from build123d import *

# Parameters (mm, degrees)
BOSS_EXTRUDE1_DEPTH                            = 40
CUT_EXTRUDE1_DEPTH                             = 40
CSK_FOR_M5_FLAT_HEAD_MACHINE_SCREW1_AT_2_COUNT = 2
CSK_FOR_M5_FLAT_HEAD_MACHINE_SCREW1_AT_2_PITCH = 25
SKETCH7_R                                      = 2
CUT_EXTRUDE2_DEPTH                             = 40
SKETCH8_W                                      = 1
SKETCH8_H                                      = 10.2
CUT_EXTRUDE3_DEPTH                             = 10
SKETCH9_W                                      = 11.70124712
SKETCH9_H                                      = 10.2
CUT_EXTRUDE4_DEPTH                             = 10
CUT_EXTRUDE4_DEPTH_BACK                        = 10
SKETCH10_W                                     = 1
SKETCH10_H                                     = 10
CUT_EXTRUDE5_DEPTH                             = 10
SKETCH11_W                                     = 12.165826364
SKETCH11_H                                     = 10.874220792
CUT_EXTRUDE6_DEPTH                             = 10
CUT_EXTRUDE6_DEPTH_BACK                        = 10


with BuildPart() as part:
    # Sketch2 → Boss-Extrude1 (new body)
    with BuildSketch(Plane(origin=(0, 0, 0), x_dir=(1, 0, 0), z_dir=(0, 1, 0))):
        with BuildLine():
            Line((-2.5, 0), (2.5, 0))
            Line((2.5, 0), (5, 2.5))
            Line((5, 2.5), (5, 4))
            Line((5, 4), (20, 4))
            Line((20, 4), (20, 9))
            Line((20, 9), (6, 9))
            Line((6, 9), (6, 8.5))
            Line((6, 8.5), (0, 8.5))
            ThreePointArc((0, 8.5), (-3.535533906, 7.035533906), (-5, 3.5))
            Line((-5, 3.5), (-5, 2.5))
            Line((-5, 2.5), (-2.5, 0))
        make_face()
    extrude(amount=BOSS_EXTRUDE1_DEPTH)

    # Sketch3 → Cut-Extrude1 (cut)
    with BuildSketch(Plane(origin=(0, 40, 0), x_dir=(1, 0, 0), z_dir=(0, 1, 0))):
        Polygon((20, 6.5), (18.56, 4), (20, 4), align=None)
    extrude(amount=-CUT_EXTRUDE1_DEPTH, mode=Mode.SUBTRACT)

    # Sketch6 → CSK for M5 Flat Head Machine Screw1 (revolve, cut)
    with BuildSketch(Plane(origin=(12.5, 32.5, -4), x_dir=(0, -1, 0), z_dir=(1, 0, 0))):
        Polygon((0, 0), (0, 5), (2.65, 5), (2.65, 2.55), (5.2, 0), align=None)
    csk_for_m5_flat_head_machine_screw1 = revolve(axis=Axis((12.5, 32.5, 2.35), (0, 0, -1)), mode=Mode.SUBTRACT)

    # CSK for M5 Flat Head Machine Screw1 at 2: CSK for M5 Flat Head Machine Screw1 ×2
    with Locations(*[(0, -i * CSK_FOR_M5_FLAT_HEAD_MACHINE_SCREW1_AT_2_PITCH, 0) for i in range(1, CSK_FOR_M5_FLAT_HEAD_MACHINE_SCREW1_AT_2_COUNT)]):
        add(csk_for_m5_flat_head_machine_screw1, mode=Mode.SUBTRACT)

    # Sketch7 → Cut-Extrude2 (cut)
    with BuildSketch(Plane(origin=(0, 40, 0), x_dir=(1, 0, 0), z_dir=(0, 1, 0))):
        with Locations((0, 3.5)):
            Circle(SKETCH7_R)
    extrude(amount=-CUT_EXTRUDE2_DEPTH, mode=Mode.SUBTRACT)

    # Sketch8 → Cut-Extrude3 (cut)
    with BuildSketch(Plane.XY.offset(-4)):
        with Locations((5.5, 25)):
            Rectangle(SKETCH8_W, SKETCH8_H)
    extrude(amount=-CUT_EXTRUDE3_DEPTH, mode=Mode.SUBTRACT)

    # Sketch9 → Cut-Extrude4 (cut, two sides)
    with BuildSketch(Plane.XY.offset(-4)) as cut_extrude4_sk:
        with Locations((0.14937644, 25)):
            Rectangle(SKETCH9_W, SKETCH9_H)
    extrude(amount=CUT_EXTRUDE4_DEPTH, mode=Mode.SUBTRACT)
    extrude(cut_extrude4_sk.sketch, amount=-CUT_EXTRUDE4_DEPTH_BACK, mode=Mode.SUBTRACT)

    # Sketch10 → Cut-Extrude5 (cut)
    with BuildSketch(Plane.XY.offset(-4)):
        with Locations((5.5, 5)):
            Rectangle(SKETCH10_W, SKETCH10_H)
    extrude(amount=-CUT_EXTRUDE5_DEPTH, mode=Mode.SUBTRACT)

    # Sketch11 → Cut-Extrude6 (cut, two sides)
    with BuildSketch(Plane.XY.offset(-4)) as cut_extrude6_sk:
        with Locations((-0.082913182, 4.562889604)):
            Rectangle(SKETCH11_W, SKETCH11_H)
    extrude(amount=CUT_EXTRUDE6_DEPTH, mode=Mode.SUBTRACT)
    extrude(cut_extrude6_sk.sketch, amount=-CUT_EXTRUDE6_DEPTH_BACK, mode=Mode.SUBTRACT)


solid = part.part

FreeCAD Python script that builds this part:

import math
import FreeCAD as App
import Part
import Sketcher
Q = App.Units.Quantity


def add_polygon(sketch, points):
    """Adds a closed chain of lines whose ends are joined by coincident constraints."""
    first, n = sketch.GeometryCount, len(points)
    for a, b in zip(points, points[1:] + points[:1]):
        sketch.addGeometry(Part.LineSegment(App.Vector(*a, 0), App.Vector(*b, 0)), False)
    for i in range(n):
        sketch.addConstraint(Sketcher.Constraint("Coincident", first + i, 2, first + (i + 1) % n, 1))

doc = App.newDocument("Part")
body = doc.addObject("PartDesign::Body", "Body")

sketch1 = body.newObject("Sketcher::SketchObject", "Sketch")
sketch1.AttachmentSupport = (doc.getObject("XZ_Plane"), [""])
sketch1.MapMode = "FlatFace"
sketch1.addGeometry([
    Part.LineSegment(App.Vector(-2.5, 0, 0), App.Vector(2.5, 0, 0)),
    Part.LineSegment(App.Vector(2.5, 0, 0), App.Vector(5, -2.5, 0)),
    Part.LineSegment(App.Vector(5, -2.5, 0), App.Vector(5, -4, 0)),
    Part.LineSegment(App.Vector(5, -4, 0), App.Vector(20, -4, 0)),
    Part.LineSegment(App.Vector(20, -4, 0), App.Vector(20, -9, 0)),
    Part.LineSegment(App.Vector(20, -9, 0), App.Vector(6, -9, 0)),
    Part.LineSegment(App.Vector(6, -9, 0), App.Vector(6, -8.5, 0)),
    Part.LineSegment(App.Vector(6, -8.5, 0), App.Vector(0, -8.5, 0)),
    Part.ArcOfCircle(Part.Circle(App.Vector(0, -3.5, 0), App.Vector(0, 0, 1), 5), math.radians(180), math.radians(270)),
    Part.LineSegment(App.Vector(-5, -3.5, 0), App.Vector(-5, -2.5, 0)),
    Part.LineSegment(App.Vector(-5, -2.5, 0), App.Vector(-2.5, 0, 0)),
], False)
sketch1.addConstraint([
    Sketcher.Constraint("Coincident", 0, 2, 1, 1),
    Sketcher.Constraint("Coincident", 1, 2, 2, 1),
    Sketcher.Constraint("Coincident", 2, 2, 3, 1),
    Sketcher.Constraint("Coincident", 3, 2, 4, 1),
    Sketcher.Constraint("Coincident", 4, 2, 5, 1),
    Sketcher.Constraint("Coincident", 5, 2, 6, 1),
    Sketcher.Constraint("Coincident", 6, 2, 7, 1),
    Sketcher.Constraint("Tangent", 7, 2, 8, 2),
    Sketcher.Constraint("Tangent", 8, 1, 9, 1),
    Sketcher.Constraint("Coincident", 9, 2, 10, 1),
    Sketcher.Constraint("Coincident", 10, 2, 0, 1),
    Sketcher.Constraint("Horizontal", 0),
    Sketcher.Constraint("Vertical", 2),
    Sketcher.Constraint("Horizontal", 3),
    Sketcher.Constraint("Vertical", 4),
    Sketcher.Constraint("Horizontal", 5),
    Sketcher.Constraint("Vertical", 6),
    Sketcher.Constraint("Horizontal", 7),
    Sketcher.Constraint("Vertical", 9),
    Sketcher.Constraint("Symmetric", 0, 2, 10, 2, -1, 1),
    Sketcher.Constraint("Symmetric", 1, 2, 9, 2, -2),
    Sketcher.Constraint("PointOnObject", 8, 3, -2),
    Sketcher.Constraint("Perpendicular", 1, 10),
    Sketcher.Constraint("Equal", 0, 4),
    Sketcher.Constraint("Radius", 8, Q("5 mm")),
    Sketcher.Constraint("DistanceX", 0, 1, 0, 2, Q("5 mm")),
    Sketcher.Constraint("DistanceX", 3, 1, 3, 2, Q("15 mm")),
    Sketcher.Constraint("DistanceX", 5, 2, 5, 1, Q("14 mm")),
    Sketcher.Constraint("DistanceY", 9, 1, 9, 2, Q("1 mm")),
    Sketcher.Constraint("DistanceY", 2, 2, 2, 1, Q("1.5 mm")),
])
pad1 = body.newObject("PartDesign::Pad", "Pad")
pad1.Profile = sketch1
pad1.Length = 40
pad1.Reversed = True

sketch2 = body.newObject("Sketcher::SketchObject", "Sketch001")
sketch2.AttachmentSupport = (doc.getObject("XZ_Plane"), [""])
sketch2.MapMode = "FlatFace"
sketch2.AttachmentOffset = App.Placement(App.Vector(0, 0, -40), App.Rotation())
add_polygon(sketch2, [(20, -6.5), (18.56, -4), (20, -4)])
sketch2.addConstraint([
    Sketcher.Constraint("Horizontal", 1),
    Sketcher.Constraint("Vertical", 2),
    Sketcher.Constraint("DistanceY", 2, 2, 2, 1, Q("2.5 mm")),
    Sketcher.Constraint("DistanceY", 0, 2, -1, 1, Q("4 mm")),
    Sketcher.Constraint("DistanceX", -1, 1, 1, 2, Q("20 mm")),
    Sketcher.Constraint("DistanceX", 1, 1, 1, 2, Q("1.44 mm")),
])
pocket1 = body.newObject("PartDesign::Pocket", "Pocket")
pocket1.Profile = sketch2
pocket1.Length = 40
pocket1.Reversed = True

sketch3 = body.newObject("Sketcher::SketchObject", "Sketch002")
sketch3.AttachmentSupport = (doc.getObject("YZ_Plane"), [""])
sketch3.MapMode = "FlatFace"
sketch3.AttachmentOffset = App.Placement(App.Vector(0, 0, 12.5), App.Rotation())
add_polygon(sketch3, [(32.5, -9), (32.5, -4), (27.3, -4), (29.85, -6.55), (29.85, -9)])
sketch3.addGeometry(Part.LineSegment(App.Vector(32.5, -4, 0), App.Vector(32.5, -9, 0)), True)
sketch3.addConstraint([
    Sketcher.Constraint("Vertical", 0),
    Sketcher.Constraint("Horizontal", 1),
    Sketcher.Constraint("Vertical", 3),
    Sketcher.Constraint("Horizontal", 4),
    Sketcher.Constraint("Vertical", 5),
    Sketcher.Constraint("Coincident", 5, 1, 0, 2),
    Sketcher.Constraint("Horizontal", 3, 2, 5, 2),
    Sketcher.Constraint("DistanceY", 0, 1, 0, 2, Q("5 mm")),
    Sketcher.Constraint("Angle", 2, Q("-45 deg")),
    Sketcher.Constraint("DistanceX", 1, 2, 1, 1, Q("5.2 mm")),
    Sketcher.Constraint("DistanceY", 0, 2, -1, 1, Q("4 mm")),
    Sketcher.Constraint("DistanceX", 4, 1, 4, 2, Q("2.65 mm")),
    Sketcher.Constraint("DistanceX", -1, 1, 0, 2, Q("32.5 mm")),
])
groove = body.newObject("PartDesign::Groove", "Groove")
groove.Profile = sketch3
groove.ReferenceAxis = (sketch3, ["Axis0"])
groove.Angle = 360
doc.recompute()

linearpattern = body.newObject("PartDesign::LinearPattern", "LinearPattern")
linearpattern.Originals = [groove]
linearpattern.Direction = (doc.getObject("Y_Axis"), [""])
linearpattern.Mode = "offset"
linearpattern.Offset = 25
linearpattern.Occurrences = 2
linearpattern.Reversed = True
body.Tip = linearpattern

sketch4 = body.newObject("Sketcher::SketchObject", "Sketch003")
sketch4.AttachmentSupport = (doc.getObject("XZ_Plane"), [""])
sketch4.MapMode = "FlatFace"
sketch4.AttachmentOffset = App.Placement(App.Vector(0, 0, -40), App.Rotation())
sketch4.addGeometry(Part.Circle(App.Vector(0, -3.5, 0), App.Vector(0, 0, 1), 2), False)
sketch4.addConstraint([
    Sketcher.Constraint("PointOnObject", 0, 3, -2),
    Sketcher.Constraint("Diameter", 0, Q("4 mm")),
    Sketcher.Constraint("DistanceY", 0, 3, -1, 1, Q("3.5 mm")),
])
pocket2 = body.newObject("PartDesign::Pocket", "Pocket001")
pocket2.Profile = sketch4
pocket2.Length = 40
pocket2.Reversed = True

sketch5 = body.newObject("Sketcher::SketchObject", "Sketch004")
sketch5.AttachmentSupport = (doc.getObject("XY_Plane"), [""])
sketch5.MapMode = "FlatFace"
sketch5.AttachmentOffset = App.Placement(App.Vector(0, 0, -4), App.Rotation())
add_polygon(sketch5, [(5, 30.1), (5, 19.9), (6, 19.9), (6, 30.1)])
sketch5.addConstraint([
    Sketcher.Constraint("Vertical", 0),
    Sketcher.Constraint("Horizontal", 1),
    Sketcher.Constraint("Vertical", 2),
    Sketcher.Constraint("Horizontal", 3),
    Sketcher.Constraint("DistanceX", 1, 1, 1, 2, Q("1 mm")),
    Sketcher.Constraint("DistanceY", 0, 2, 0, 1, Q("10.2 mm")),
    Sketcher.Constraint("DistanceX", -1, 1, 0, 2, Q("5 mm")),
    Sketcher.Constraint("DistanceY", -1, 1, 0, 2, Q("19.9 mm")),
])
pocket3 = body.newObject("PartDesign::Pocket", "Pocket002")
pocket3.Profile = sketch5
pocket3.Length = 10

sketch6 = body.newObject("Sketcher::SketchObject", "Sketch005")
sketch6.AttachmentSupport = (doc.getObject("XY_Plane"), [""])
sketch6.MapMode = "FlatFace"
sketch6.AttachmentOffset = App.Placement(App.Vector(0, 0, -4), App.Rotation())
add_polygon(sketch6, [(-5.701247, 30.1), (-5.701247, 19.9), (6, 19.9), (6, 30.1)])
sketch6.addConstraint([
    Sketcher.Constraint("Vertical", 0),
    Sketcher.Constraint("Horizontal", 1),
    Sketcher.Constraint("Vertical", 2),
    Sketcher.Constraint("Horizontal", 3),
    Sketcher.Constraint("DistanceY", 0, 2, 0, 1, Q("10.2 mm")),
    Sketcher.Constraint("DistanceX", -1, 1, 1, 2, Q("6 mm")),
    Sketcher.Constraint("DistanceY", -1, 1, 0, 2, Q("19.9 mm")),
    Sketcher.Constraint("DistanceX", 1, 1, 1, 2, Q("11.701247 mm")),
])
pocket4 = body.newObject("PartDesign::Pocket", "Pocket003")
pocket4.Profile = sketch6
pocket4.Type = "ThroughAll"
pocket4.Midplane = True

sketch7 = body.newObject("Sketcher::SketchObject", "Sketch006")
sketch7.AttachmentSupport = (doc.getObject("XY_Plane"), [""])
sketch7.MapMode = "FlatFace"
sketch7.AttachmentOffset = App.Placement(App.Vector(0, 0, -4), App.Rotation())
add_polygon(sketch7, [(5, 10), (5, 0), (6, 0), (6, 10)])
sketch7.addConstraint([
    Sketcher.Constraint("Vertical", 0),
    Sketcher.Constraint("Horizontal", 1),
    Sketcher.Constraint("Vertical", 2),
    Sketcher.Constraint("Horizontal", 3),
    Sketcher.Constraint("PointOnObject", 0, 2, -1),
    Sketcher.Constraint("DistanceX", 1, 1, 1, 2, Q("1 mm")),
    Sketcher.Constraint("DistanceY", 0, 2, 0, 1, Q("10 mm")),
    Sketcher.Constraint("DistanceX", -1, 1, 0, 2, Q("5 mm")),
])
pocket5 = body.newObject("PartDesign::Pocket", "Pocket004")
pocket5.Profile = sketch7
pocket5.Length = 10

sketch8 = body.newObject("Sketcher::SketchObject", "Sketch007")
sketch8.AttachmentSupport = (doc.getObject("XY_Plane"), [""])
sketch8.MapMode = "FlatFace"
sketch8.AttachmentOffset = App.Placement(App.Vector(0, 0, -4), App.Rotation())
add_polygon(sketch8, [(-6.165826, 10), (-6.165826, -0.874221), (6, -0.874221), (6, 10)])
sketch8.addConstraint([
    Sketcher.Constraint("Vertical", 0),
    Sketcher.Constraint("Horizontal", 1),
    Sketcher.Constraint("Vertical", 2),
    Sketcher.Constraint("Horizontal", 3),
    Sketcher.Constraint("DistanceX", -1, 1, 1, 2, Q("6 mm")),
    Sketcher.Constraint("DistanceY", -1, 1, 2, 2, Q("10 mm")),
    Sketcher.Constraint("DistanceY", 0, 2, 0, 1, Q("10.874221 mm")),
    Sketcher.Constraint("DistanceX", 1, 1, 1, 2, Q("12.165826 mm")),
])
pocket6 = body.newObject("PartDesign::Pocket", "Pocket005")
pocket6.Profile = sketch8
pocket6.Type = "ThroughAll"
pocket6.Midplane = True

doc.recompute()
